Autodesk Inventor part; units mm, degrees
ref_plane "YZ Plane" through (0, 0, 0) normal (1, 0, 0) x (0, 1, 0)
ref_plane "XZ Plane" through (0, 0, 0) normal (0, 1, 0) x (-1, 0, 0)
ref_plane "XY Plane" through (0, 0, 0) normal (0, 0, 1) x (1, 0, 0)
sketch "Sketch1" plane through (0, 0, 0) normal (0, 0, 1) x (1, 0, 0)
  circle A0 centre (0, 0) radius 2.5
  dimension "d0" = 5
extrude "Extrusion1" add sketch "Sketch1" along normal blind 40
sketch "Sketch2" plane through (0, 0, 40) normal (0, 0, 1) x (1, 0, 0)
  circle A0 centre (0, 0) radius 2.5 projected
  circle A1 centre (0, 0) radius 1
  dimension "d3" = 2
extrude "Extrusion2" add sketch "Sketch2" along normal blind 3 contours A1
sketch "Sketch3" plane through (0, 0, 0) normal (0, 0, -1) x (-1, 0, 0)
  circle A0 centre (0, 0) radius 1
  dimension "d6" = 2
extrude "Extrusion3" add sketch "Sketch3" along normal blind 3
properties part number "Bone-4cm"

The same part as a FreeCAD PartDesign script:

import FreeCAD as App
import Part
import Sketcher
Q = App.Units.Quantity

doc = App.newDocument("Part")
params = doc.addObject("Spreadsheet::Sheet", "Params")
for row, (alias, value) in enumerate([
    ("sketch1_diameter", "5 mm"),
    ("pad1_length", "40 mm"),
    ("sketch2_diameter", "2 mm"),
    ("pad2_length", "3 mm"),
    ("sketch3_diameter", "2 mm"),
    ("pad3_length", "3 mm"),
], start=1):
    params.set(f"A{row}", alias)
    params.set(f"B{row}", "=" + value)
    params.setAlias(f"B{row}", alias)

body = doc.addObject("PartDesign::Body", "Body")

sketch1 = body.newObject("Sketcher::SketchObject", "Sketch")
sketch1.AttachmentSupport = (doc.getObject("XY_Plane"), [""])
sketch1.MapMode = "FlatFace"
sketch1.addGeometry(Part.Circle(App.Vector(0, 0, 0), App.Vector(0, 0, 1), 2.5), False)
sketch1.addConstraint([
    Sketcher.Constraint("Coincident", 0, 3, -1, 1),
    Sketcher.Constraint("Diameter", 0, Q("5 mm")),
])
sketch1.setExpression("Constraints[1]", "Params.sketch1_diameter")
pad1 = body.newObject("PartDesign::Pad", "Pad")
pad1.Profile = sketch1
pad1.setExpression("Length", "Params.pad1_length")

sketch2 = body.newObject("Sketcher::SketchObject", "Sketch001")
sketch2.AttachmentSupport = (doc.getObject("XY_Plane"), [""])
sketch2.MapMode = "FlatFace"
sketch2.AttachmentOffset = App.Placement(App.Vector(0, 0, 40), App.Rotation())
sketch2.addGeometry(Part.Circle(App.Vector(0, 0, 0), App.Vector(0, 0, 1), 1), False)
sketch2.addConstraint([
    Sketcher.Constraint("Coincident", 0, 3, -1, 1),
    Sketcher.Constraint("Diameter", 0, Q("2 mm")),
])
sketch2.setExpression("Constraints[1]", "Params.sketch2_diameter")
pad2 = body.newObject("PartDesign::Pad", "Pad001")
pad2.Profile = sketch2
pad2.setExpression("Length", "Params.pad2_length")

sketch3 = body.newObject("Sketcher::SketchObject", "Sketch002")
sketch3.AttachmentSupport = (doc.getObject("XY_Plane"), [""])
sketch3.MapMode = "FlatFace"
sketch3.addGeometry(Part.Circle(App.Vector(0, 0, 0), App.Vector(0, 0, 1), 1), False)
sketch3.addConstraint([
    Sketcher.Constraint("Coincident", 0, 3, -1, 1),
    Sketcher.Constraint("Diameter", 0, Q("2 mm")),
])
sketch3.setExpression("Constraints[1]", "Params.sketch3_diameter")
pad3 = body.newObject("PartDesign::Pad", "Pad002")
pad3.Profile = sketch3
pad3.setExpression("Length", "Params.pad3_length")
pad3.Reversed = True

doc.recompute()
